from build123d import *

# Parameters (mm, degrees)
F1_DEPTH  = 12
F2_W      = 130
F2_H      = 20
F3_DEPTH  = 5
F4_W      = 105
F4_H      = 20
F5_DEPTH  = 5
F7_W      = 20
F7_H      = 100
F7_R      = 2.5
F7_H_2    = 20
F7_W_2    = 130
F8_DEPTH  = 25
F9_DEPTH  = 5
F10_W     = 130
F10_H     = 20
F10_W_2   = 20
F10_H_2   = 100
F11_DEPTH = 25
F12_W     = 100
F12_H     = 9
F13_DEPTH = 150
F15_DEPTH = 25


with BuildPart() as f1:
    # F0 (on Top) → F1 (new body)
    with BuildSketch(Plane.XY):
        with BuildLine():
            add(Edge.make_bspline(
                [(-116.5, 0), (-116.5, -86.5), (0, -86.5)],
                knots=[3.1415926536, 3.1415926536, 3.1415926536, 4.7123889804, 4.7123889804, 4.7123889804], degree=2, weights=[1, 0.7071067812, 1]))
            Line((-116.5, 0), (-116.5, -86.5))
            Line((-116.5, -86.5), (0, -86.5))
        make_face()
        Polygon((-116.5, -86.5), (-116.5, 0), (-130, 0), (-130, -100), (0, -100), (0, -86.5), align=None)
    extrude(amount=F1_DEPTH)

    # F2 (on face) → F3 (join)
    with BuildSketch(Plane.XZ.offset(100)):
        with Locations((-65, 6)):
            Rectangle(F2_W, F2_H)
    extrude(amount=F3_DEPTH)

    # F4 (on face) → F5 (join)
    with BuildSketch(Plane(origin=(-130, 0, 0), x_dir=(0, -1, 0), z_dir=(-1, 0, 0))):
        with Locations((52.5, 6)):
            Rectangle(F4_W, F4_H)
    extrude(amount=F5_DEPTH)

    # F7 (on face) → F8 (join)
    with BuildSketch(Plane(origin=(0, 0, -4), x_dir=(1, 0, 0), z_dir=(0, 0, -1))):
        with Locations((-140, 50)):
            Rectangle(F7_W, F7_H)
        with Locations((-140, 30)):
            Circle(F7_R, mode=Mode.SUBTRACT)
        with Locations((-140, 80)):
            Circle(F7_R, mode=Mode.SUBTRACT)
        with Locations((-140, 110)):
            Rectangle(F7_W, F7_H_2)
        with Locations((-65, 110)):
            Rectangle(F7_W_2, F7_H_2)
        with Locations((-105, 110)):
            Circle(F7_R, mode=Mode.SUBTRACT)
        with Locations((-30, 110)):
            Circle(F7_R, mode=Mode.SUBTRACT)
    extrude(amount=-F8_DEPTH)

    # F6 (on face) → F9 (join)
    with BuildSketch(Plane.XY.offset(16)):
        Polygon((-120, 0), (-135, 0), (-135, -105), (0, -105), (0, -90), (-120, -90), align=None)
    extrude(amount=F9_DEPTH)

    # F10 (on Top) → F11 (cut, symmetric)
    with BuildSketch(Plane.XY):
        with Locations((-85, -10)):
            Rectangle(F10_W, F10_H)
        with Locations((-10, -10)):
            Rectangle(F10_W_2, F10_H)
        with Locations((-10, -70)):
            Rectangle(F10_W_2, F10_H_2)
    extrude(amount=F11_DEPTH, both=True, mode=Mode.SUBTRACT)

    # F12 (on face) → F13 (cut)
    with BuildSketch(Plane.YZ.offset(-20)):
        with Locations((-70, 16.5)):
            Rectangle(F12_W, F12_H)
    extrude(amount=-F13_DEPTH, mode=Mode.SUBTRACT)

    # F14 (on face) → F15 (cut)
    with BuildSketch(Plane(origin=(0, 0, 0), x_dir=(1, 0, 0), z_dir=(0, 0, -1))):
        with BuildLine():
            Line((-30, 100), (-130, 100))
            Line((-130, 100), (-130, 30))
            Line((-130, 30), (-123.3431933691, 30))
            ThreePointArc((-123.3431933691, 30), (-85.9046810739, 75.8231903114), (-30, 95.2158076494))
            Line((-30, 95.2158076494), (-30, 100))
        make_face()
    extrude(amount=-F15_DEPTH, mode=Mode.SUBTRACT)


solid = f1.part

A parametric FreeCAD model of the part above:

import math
import FreeCAD as App
import Part
import Sketcher

doc = App.newDocument("Part")
params = doc.addObject("Spreadsheet::Sheet", "Params")
for row, (alias, value) in enumerate([
    ("sketch1_width", "130 mm"),
    ("pad1_length", "12 mm"),
    ("sketch2_width", "130 mm"),
    ("sketch2_height", "20 mm"),
    ("pad2_length", "5 mm"),
    ("sketch3_width", "105 mm"),
    ("sketch3_height", "20 mm"),
    ("pad3_length", "5 mm"),
    ("sketch4_diameter", "5 mm"),
    ("sketch4_width", "20 mm"),
    ("sketch4_width2", "130 mm"),
    ("sketch4_height", "100 mm"),
    ("pad4_length", "25 mm"),
    ("sketch5_width", "15 mm"),
    ("sketch5_width2", "135 mm"),
    ("sketch5_height", "105 mm"),
    ("pad5_length", "5 mm"),
    ("sketch6_width", "130 mm"),
    ("sketch6_width2", "20 mm"),
    ("sketch6_height", "100 mm"),
    ("pocket1_length", "50 mm"),
    ("sketch7_width", "100 mm"),
    ("sketch7_height", "9 mm"),
    ("pocket2_length", "150 mm"),
    ("sketch8_width", "100 mm"),
    ("sketch8_height", "70 mm"),
    ("pocket3_length", "25 mm"),
], start=1):
    params.set(f"A{row}", alias)
    params.set(f"B{row}", "=" + value)
    params.setAlias(f"B{row}", alias)

body = doc.addObject("PartDesign::Body", "Body")

sketch1 = doc.addObject("Sketcher::SketchObject", "Sketch")
body.addObject(sketch1)
sketch1.AttachmentSupport = (doc.XY_Plane, [""])
sketch1.MapMode = "FlatFace"
sketch1.addGeometry(Part.BSplineCurve([App.Vector(-116.5, 0, 0), App.Vector(-116.5, -86.5, 0), App.Vector(0, -86.5, 0)], [3, 3], [3.141592654, 4.71238898], False, 2, [1, 0.707106781, 1], False), False)
sketch1.addGeometry(Part.LineSegment(App.Vector(-116.5, 0, 0), App.Vector(-130, 0, 0)), False)
sketch1.addGeometry(Part.LineSegment(App.Vector(-130, 0, 0), App.Vector(-130, -100, 0)), False)
sketch1.addGeometry(Part.LineSegment(App.Vector(-130, -100, 0), App.Vector(0, -100, 0)), False)
sketch1.addGeometry(Part.LineSegment(App.Vector(0, -100, 0), App.Vector(0, -86.5, 0)), False)
sketch1.addConstraint(Sketcher.Constraint("Block", 0))
sketch1.addConstraint(Sketcher.Constraint("Coincident", 0, 1, 1, 1))
sketch1.addConstraint(Sketcher.Constraint("Coincident", 1, 2, 2, 1))
sketch1.addConstraint(Sketcher.Constraint("Coincident", 2, 2, 3, 1))
sketch1.addConstraint(Sketcher.Constraint("Coincident", 3, 2, 4, 1))
sketch1.addConstraint(Sketcher.Constraint("Coincident", 4, 2, 0, 2))
sketch1.addConstraint(Sketcher.Constraint("Horizontal", 1))
sketch1.addConstraint(Sketcher.Constraint("Vertical", 2))
sketch1.addConstraint(Sketcher.Constraint("Horizontal", 3))
sketch1.addConstraint(Sketcher.Constraint("Vertical", 4))
sketch1.addConstraint(Sketcher.Constraint("Equal", 1, 4))
sketch1.addConstraint(Sketcher.Constraint("DistanceX", 3, 1, 3, 2, 130.0))
sketch1.setExpression("Constraints[11]", "Params.sketch1_width")
pad1 = doc.addObject("PartDesign::Pad", "Pad")
body.addObject(pad1)
pad1.Profile = sketch1
pad1.setExpression("Length", "Params.pad1_length")

sketch2 = doc.addObject("Sketcher::SketchObject", "Sketch001")
body.addObject(sketch2)
sketch2.AttachmentSupport = (doc.XZ_Plane, [""])
sketch2.MapMode = "FlatFace"
sketch2.AttachmentOffset = App.Placement(App.Vector(0, 0, 100), App.Rotation())
sketch2.addGeometry(Part.LineSegment(App.Vector(-130, 16, 0), App.Vector(-130, -4, 0)), False)
sketch2.addGeometry(Part.LineSegment(App.Vector(-130, -4, 0), App.Vector(0, -4, 0)), False)
sketch2.addGeometry(Part.LineSegment(App.Vector(0, -4, 0), App.Vector(0, 16, 0)), False)
sketch2.addGeometry(Part.LineSegment(App.Vector(0, 16, 0), App.Vector(-130, 16, 0)), False)
sketch2.addConstraint(Sketcher.Constraint("Coincident", 0, 2, 1, 1))
sketch2.addConstraint(Sketcher.Constraint("Coincident", 1, 2, 2, 1))
sketch2.addConstraint(Sketcher.Constraint("Coincident", 2, 2, 3, 1))
sketch2.addConstraint(Sketcher.Constraint("Coincident", 3, 2, 0, 1))
sketch2.addConstraint(Sketcher.Constraint("Vertical", 0))
sketch2.addConstraint(Sketcher.Constraint("Horizontal", 1))
sketch2.addConstraint(Sketcher.Constraint("Vertical", 2))
sketch2.addConstraint(Sketcher.Constraint("Horizontal", 3))
sketch2.addConstraint(Sketcher.Constraint("PointOnObject", 1, 2, -2))
sketch2.addConstraint(Sketcher.Constraint("DistanceX", 1, 1, 1, 2, 130.0))
sketch2.addConstraint(Sketcher.Constraint("DistanceY", 0, 2, 0, 1, 20.0))
sketch2.addConstraint(Sketcher.Constraint("DistanceY", 0, 2, -1, 1, 4.0))
sketch2.setExpression("Constraints[9]", "Params.sketch2_width")
sketch2.setExpression("Constraints[10]", "Params.sketch2_height")
pad2 = doc.addObject("PartDesign::Pad", "Pad001")
body.addObject(pad2)
pad2.Profile = sketch2
pad2.setExpression("Length", "Params.pad2_length")

sketch3 = doc.addObject("Sketcher::SketchObject", "Sketch002")
body.addObject(sketch3)
sketch3.AttachmentSupport = (doc.YZ_Plane, [""])
sketch3.MapMode = "FlatFace"
sketch3.AttachmentOffset = App.Placement(App.Vector(0, 0, -130), App.Rotation())
sketch3.addGeometry(Part.LineSegment(App.Vector(0, 16, 0), App.Vector(0, -4, 0)), False)
sketch3.addGeometry(Part.LineSegment(App.Vector(0, -4, 0), App.Vector(-105, -4, 0)), False)
sketch3.addGeometry(Part.LineSegment(App.Vector(-105, -4, 0), App.Vector(-105, 16, 0)), False)
sketch3.addGeometry(Part.LineSegment(App.Vector(-105, 16, 0), App.Vector(0, 16, 0)), False)
sketch3.addConstraint(Sketcher.Constraint("Coincident", 0, 2, 1, 1))
sketch3.addConstraint(Sketcher.Constraint("Coincident", 1, 2, 2, 1))
sketch3.addConstraint(Sketcher.Constraint("Coincident", 2, 2, 3, 1))
sketch3.addConstraint(Sketcher.Constraint("Coincident", 3, 2, 0, 1))
sketch3.addConstraint(Sketcher.Constraint("Vertical", 0))
sketch3.addConstraint(Sketcher.Constraint("Horizontal", 1))
sketch3.addConstraint(Sketcher.Constraint("Vertical", 2))
sketch3.addConstraint(Sketcher.Constraint("Horizontal", 3))
sketch3.addConstraint(Sketcher.Constraint("PointOnObject", 0, 2, -2))
sketch3.addConstraint(Sketcher.Constraint("DistanceX", 1, 2, 1, 1, 105.0))
sketch3.addConstraint(Sketcher.Constraint("DistanceY", 0, 2, 0, 1, 20.0))
sketch3.addConstraint(Sketcher.Constraint("DistanceY", 0, 2, -1, 1, 4.0))
sketch3.setExpression("Constraints[9]", "Params.sketch3_width")
sketch3.setExpression("Constraints[10]", "Params.sketch3_height")
pad3 = doc.addObject("PartDesign::Pad", "Pad002")
body.addObject(pad3)
pad3.Profile = sketch3
pad3.setExpression("Length", "Params.pad3_length")
pad3.Reversed = True

sketch4 = doc.addObject("Sketcher::SketchObject", "Sketch003")
body.addObject(sketch4)
sketch4.AttachmentSupport = (doc.XY_Plane, [""])
sketch4.MapMode = "FlatFace"
sketch4.AttachmentOffset = App.Placement(App.Vector(0, 0, -4), App.Rotation())
sketch4.addGeometry(Part.LineSegment(App.Vector(-150, 0, 0), App.Vector(-130, 0, 0)), False)
sketch4.addGeometry(Part.LineSegment(App.Vector(-130, 0, 0), App.Vector(-130, -100, 0)), False)
sketch4.addGeometry(Part.LineSegment(App.Vector(-130, -100, 0), App.Vector(0, -100, 0)), False)
sketch4.addGeometry(Part.LineSegment(App.Vector(0, -100, 0), App.Vector(0, -120, 0)), False)
sketch4.addGeometry(Part.LineSegment(App.Vector(0, -120, 0), App.Vector(-150, -120, 0)), False)
sketch4.addGeometry(Part.LineSegment(App.Vector(-150, -120, 0), App.Vector(-150, 0, 0)), False)
sketch4.addGeometry(Part.Circle(App.Vector(-140, -30, 0), App.Vector(0, 0, 1), 2.5), False)
sketch4.addGeometry(Part.Circle(App.Vector(-140, -80, 0), App.Vector(0, 0, 1), 2.5), False)
sketch4.addGeometry(Part.Circle(App.Vector(-105, -110, 0), App.Vector(0, 0, 1), 2.5), False)
sketch4.addGeometry(Part.Circle(App.Vector(-30, -110, 0), App.Vector(0, 0, 1), 2.5), False)
sketch4.addConstraint(Sketcher.Constraint("Coincident", 0, 2, 1, 1))
sketch4.addConstraint(Sketcher.Constraint("Coincident", 1, 2, 2, 1))
sketch4.addConstraint(Sketcher.Constraint("Coincident", 2, 2, 3, 1))
sketch4.addConstraint(Sketcher.Constraint("Coincident", 3, 2, 4, 1))
sketch4.addConstraint(Sketcher.Constraint("Coincident", 4, 2, 5, 1))
sketch4.addConstraint(Sketcher.Constraint("Coincident", 5, 2, 0, 1))
sketch4.addConstraint(Sketcher.Constraint("Horizontal", 0))
sketch4.addConstraint(Sketcher.Constraint("Vertical", 1))
sketch4.addConstraint(Sketcher.Constraint("Horizontal", 2))
sketch4.addConstraint(Sketcher.Constraint("Vertical", 3))
sketch4.addConstraint(Sketcher.Constraint("Horizontal", 4))
sketch4.addConstraint(Sketcher.Constraint("Vertical", 5))
sketch4.addConstraint(Sketcher.Constraint("Equal", 6, 7))
sketch4.addConstraint(Sketcher.Constraint("Equal", 7, 8))
sketch4.addConstraint(Sketcher.Constraint("Equal", 8, 9))
sketch4.addConstraint(Sketcher.Constraint("PointOnObject", 0, 2, -1))
sketch4.addConstraint(Sketcher.Constraint("PointOnObject", 2, 2, -2))
sketch4.addConstraint(Sketcher.Constraint("Horizontal", 8, 3, 9, 3))
sketch4.addConstraint(Sketcher.Constraint("Vertical", 6, 3, 7, 3))
sketch4.addConstraint(Sketcher.Constraint("Equal", 0, 3))
sketch4.addConstraint(Sketcher.Constraint("Diameter", 6, 5.0))
sketch4.addConstraint(Sketcher.Constraint("DistanceX", 0, 1, 0, 2, 20.0))
sketch4.addConstraint(Sketcher.Constraint("DistanceX", 2, 1, 2, 2, 130.0))
sketch4.addConstraint(Sketcher.Constraint("DistanceY", 1, 2, 1, 1, 100.0))
sketch4.addConstraint(Sketcher.Constraint("DistanceX", 6, 3, -1, 1, 140.0))
sketch4.addConstraint(Sketcher.Constraint("DistanceY", 6, 3, -1, 1, 30.0))
sketch4.addConstraint(Sketcher.Constraint("DistanceY", 7, 3, -1, 1, 80.0))
sketch4.addConstraint(Sketcher.Constraint("DistanceX", 8, 3, -1, 1, 105.0))
sketch4.addConstraint(Sketcher.Constraint("DistanceY", 8, 3, -1, 1, 110.0))
sketch4.addConstraint(Sketcher.Constraint("DistanceX", 9, 3, -1, 1, 30.0))
sketch4.setExpression("Constraints[20]", "Params.sketch4_diameter")
sketch4.setExpression("Constraints[21]", "Params.sketch4_width")
sketch4.setExpression("Constraints[22]", "Params.sketch4_width2")
sketch4.setExpression("Constraints[23]", "Params.sketch4_height")
pad4 = doc.addObject("PartDesign::Pad", "Pad003")
body.addObject(pad4)
pad4.Profile = sketch4
pad4.setExpression("Length", "Params.pad4_length")

sketch5 = doc.addObject("Sketcher::SketchObject", "Sketch004")
body.addObject(sketch5)
sketch5.AttachmentSupport = (doc.XY_Plane, [""])
sketch5.MapMode = "FlatFace"
sketch5.AttachmentOffset = App.Placement(App.Vector(0, 0, 16), App.Rotation())
sketch5.addGeometry(Part.LineSegment(App.Vector(-120, 0, 0), App.Vector(-135, 0, 0)), False)
sketch5.addGeometry(Part.LineSegment(App.Vector(-135, 0, 0), App.Vector(-135, -105, 0)), False)
sketch5.addGeometry(Part.LineSegment(App.Vector(-135, -105, 0), App.Vector(0, -105, 0)), False)
sketch5.addGeometry(Part.LineSegment(App.Vector(0, -105, 0), App.Vector(0, -90, 0)), False)
sketch5.addGeometry(Part.LineSegment(App.Vector(0, -90, 0), App.Vector(-120, -90, 0)), False)
sketch5.addGeometry(Part.LineSegment(App.Vector(-120, -90, 0), App.Vector(-120, 0, 0)), False)
sketch5.addConstraint(Sketcher.Constraint("Coincident", 0, 2, 1, 1))
sketch5.addConstraint(Sketcher.Constraint("Coincident", 1, 2, 2, 1))
sketch5.addConstraint(Sketcher.Constraint("Coincident", 2, 2, 3, 1))
sketch5.addConstraint(Sketcher.Constraint("Coincident", 3, 2, 4, 1))
sketch5.addConstraint(Sketcher.Constraint("Coincident", 4, 2, 5, 1))
sketch5.addConstraint(Sketcher.Constraint("Coincident", 5, 2, 0, 1))
sketch5.addConstraint(Sketcher.Constraint("Horizontal", 0))
sketch5.addConstraint(Sketcher.Constraint("Vertical", 1))
sketch5.addConstraint(Sketcher.Constraint("Horizontal", 2))
sketch5.addConstraint(Sketcher.Constraint("Vertical", 3))
sketch5.addConstraint(Sketcher.Constraint("Horizontal", 4))
sketch5.addConstraint(Sketcher.Constraint("Vertical", 5))
sketch5.addConstraint(Sketcher.Constraint("PointOnObject", 0, 2, -1))
sketch5.addConstraint(Sketcher.Constraint("PointOnObject", 2, 2, -2))
sketch5.addConstraint(Sketcher.Constraint("Equal", 0, 3))
sketch5.addConstraint(Sketcher.Constraint("DistanceX", 0, 2, 0, 1, 15.0))
sketch5.addConstraint(Sketcher.Constraint("DistanceX", 2, 1, 2, 2, 135.0))
sketch5.addConstraint(Sketcher.Constraint("DistanceY", 1, 2, 1, 1, 105.0))
sketch5.setExpression("Constraints[15]", "Params.sketch5_width")
sketch5.setExpression("Constraints[16]", "Params.sketch5_width2")
sketch5.setExpression("Constraints[17]", "Params.sketch5_height")
pad5 = doc.addObject("PartDesign::Pad", "Pad004")
body.addObject(pad5)
pad5.Profile = sketch5
pad5.setExpression("Length", "Params.pad5_length")

sketch6 = doc.addObject("Sketcher::SketchObject", "Sketch005")
body.addObject(sketch6)
sketch6.AttachmentSupport = (doc.XY_Plane, [""])
sketch6.MapMode = "FlatFace"
sketch6.addGeometry(Part.LineSegment(App.Vector(-150, 0, 0), App.Vector(-150, -20, 0)), False)
sketch6.addGeometry(Part.LineSegment(App.Vector(-150, -20, 0), App.Vector(-20, -20, 0)), False)
sketch6.addGeometry(Part.LineSegment(App.Vector(-20, -20, 0), App.Vector(-20, -120, 0)), False)
sketch6.addGeometry(Part.LineSegment(App.Vector(-20, -120, 0), App.Vector(0, -120, 0)), False)
sketch6.addGeometry(Part.LineSegment(App.Vector(0, -120, 0), App.Vector(0, 0, 0)), False)
sketch6.addGeometry(Part.LineSegment(App.Vector(0, 0, 0), App.Vector(-150, 0, 0)), False)
sketch6.addConstraint(Sketcher.Constraint("Coincident", 0, 2, 1, 1))
sketch6.addConstraint(Sketcher.Constraint("Coincident", 1, 2, 2, 1))
sketch6.addConstraint(Sketcher.Constraint("Coincident", 2, 2, 3, 1))
sketch6.addConstraint(Sketcher.Constraint("Coincident", 3, 2, 4, 1))
sketch6.addConstraint(Sketcher.Constraint("Coincident", 4, 2, 5, 1))
sketch6.addConstraint(Sketcher.Constraint("Coincident", 5, 2, 0, 1))
sketch6.addConstraint(Sketcher.Constraint("Vertical", 0))
sketch6.addConstraint(Sketcher.Constraint("Horizontal", 1))
sketch6.addConstraint(Sketcher.Constraint("Vertical", 2))
sketch6.addConstraint(Sketcher.Constraint("Horizontal", 3))
sketch6.addConstraint(Sketcher.Constraint("Vertical", 4))
sketch6.addConstraint(Sketcher.Constraint("Horizontal", 5))
sketch6.addConstraint(Sketcher.Constraint("Coincident", 4, 2, -1, 1))
sketch6.addConstraint(Sketcher.Constraint("Equal", 3, 0))
sketch6.addConstraint(Sketcher.Constraint("DistanceX", 1, 1, 1, 2, 130.0))
sketch6.addConstraint(Sketcher.Constraint("DistanceX", 3, 1, 3, 2, 20.0))
sketch6.addConstraint(Sketcher.Constraint("DistanceY", 2, 2, 2, 1, 100.0))
sketch6.setExpression("Constraints[14]", "Params.sketch6_width")
sketch6.setExpression("Constraints[15]", "Params.sketch6_width2")
sketch6.setExpression("Constraints[16]", "Params.sketch6_height")
pocket1 = doc.addObject("PartDesign::Pocket", "Pocket")
body.addObject(pocket1)
pocket1.Profile = sketch6
pocket1.setExpression("Length", "Params.pocket1_length")
pocket1.Midplane = True

sketch7 = doc.addObject("Sketcher::SketchObject", "Sketch006")
body.addObject(sketch7)
sketch7.AttachmentSupport = (doc.YZ_Plane, [""])
sketch7.MapMode = "FlatFace"
sketch7.AttachmentOffset = App.Placement(App.Vector(0, 0, -20), App.Rotation())
sketch7.addGeometry(Part.LineSegment(App.Vector(-120, 21, 0), App.Vector(-120, 12, 0)), False)
sketch7.addGeometry(Part.LineSegment(App.Vector(-120, 12, 0), App.Vector(-20, 12, 0)), False)
sketch7.addGeometry(Part.LineSegment(App.Vector(-20, 12, 0), App.Vector(-20, 21, 0)), False)
sketch7.addGeometry(Part.LineSegment(App.Vector(-20, 21, 0), App.Vector(-120, 21, 0)), False)
sketch7.addConstraint(Sketcher.Constraint("Coincident", 0, 2, 1, 1))
sketch7.addConstraint(Sketcher.Constraint("Coincident", 1, 2, 2, 1))
sketch7.addConstraint(Sketcher.Constraint("Coincident", 2, 2, 3, 1))
sketch7.addConstraint(Sketcher.Constraint("Coincident", 3, 2, 0, 1))
sketch7.addConstraint(Sketcher.Constraint("Vertical", 0))
sketch7.addConstraint(Sketcher.Constraint("Horizontal", 1))
sketch7.addConstraint(Sketcher.Constraint("Vertical", 2))
sketch7.addConstraint(Sketcher.Constraint("Horizontal", 3))
sketch7.addConstraint(Sketcher.Constraint("DistanceX", 1, 1, 1, 2, 100.0))
sketch7.addConstraint(Sketcher.Constraint("DistanceY", 0, 2, 0, 1, 9.0))
sketch7.addConstraint(Sketcher.Constraint("DistanceX", 0, 2, -1, 1, 120.0))
sketch7.addConstraint(Sketcher.Constraint("DistanceY", -1, 1, 0, 2, 12.0))
sketch7.setExpression("Constraints[8]", "Params.sketch7_width")
sketch7.setExpression("Constraints[9]", "Params.sketch7_height")
pocket2 = doc.addObject("PartDesign::Pocket", "Pocket001")
body.addObject(pocket2)
pocket2.Profile = sketch7
pocket2.setExpression("Length", "Params.pocket2_length")

sketch8 = doc.addObject("Sketcher::SketchObject", "Sketch007")
body.addObject(sketch8)
sketch8.AttachmentSupport = (doc.XY_Plane, [""])
sketch8.MapMode = "FlatFace"
sketch8.addGeometry(Part.LineSegment(App.Vector(-30, -100, 0), App.Vector(-130, -100, 0)), False)
sketch8.addGeometry(Part.LineSegment(App.Vector(-130, -100, 0), App.Vector(-130, -30, 0)), False)
sketch8.addGeometry(Part.LineSegment(App.Vector(-130, -30, 0), App.Vector(-123.343193, -30, 0)), False)
sketch8.addGeometry(Part.ArcOfCircle(Part.Circle(App.Vector(-23.708497, 13.198025, 0), App.Vector(0, 0, 1), 108.596235), math.radians(-156.560178), math.radians(-93.32128)), False)
sketch8.addGeometry(Part.LineSegment(App.Vector(-30, -95.215808, 0), App.Vector(-30, -100, 0)), False)
sketch8.addConstraint(Sketcher.Constraint("Coincident", 0, 2, 1, 1))
sketch8.addConstraint(Sketcher.Constraint("Coincident", 1, 2, 2, 1))
sketch8.addConstraint(Sketcher.Constraint("Coincident", 2, 2, 3, 1))
sketch8.addConstraint(Sketcher.Constraint("Coincident", 3, 2, 4, 1))
sketch8.addConstraint(Sketcher.Constraint("Coincident", 4, 2, 0, 1))
sketch8.addConstraint(Sketcher.Constraint("Horizontal", 0))
sketch8.addConstraint(Sketcher.Constraint("Vertical", 1))
sketch8.addConstraint(Sketcher.Constraint("Horizontal", 2))
sketch8.addConstraint(Sketcher.Constraint("Vertical", 4))
sketch8.addConstraint(Sketcher.Constraint("DistanceX", 0, 2, 0, 1, 100.0))
sketch8.addConstraint(Sketcher.Constraint("DistanceY", 1, 1, 1, 2, 70.0))
sketch8.addConstraint(Sketcher.Constraint("DistanceX", 0, 2, -1, 1, 130.0))
sketch8.addConstraint(Sketcher.Constraint("DistanceY", 0, 2, -1, 1, 100.0))
sketch8.addConstraint(Sketcher.Constraint("Radius", 3, 108.596235))
sketch8.addConstraint(Sketcher.Constraint("DistanceX", 2, 1, 2, 2, 6.656807))
sketch8.addConstraint(Sketcher.Constraint("DistanceY", 4, 2, 4, 1, 4.784192))
sketch8.setExpression("Constraints[9]", "Params.sketch8_width")
sketch8.setExpression("Constraints[10]", "Params.sketch8_height")
pocket3 = doc.addObject("PartDesign::Pocket", "Pocket002")
body.addObject(pocket3)
pocket3.Profile = sketch8
pocket3.setExpression("Length", "Params.pocket3_length")
pocket3.Reversed = True

doc.recompute()
